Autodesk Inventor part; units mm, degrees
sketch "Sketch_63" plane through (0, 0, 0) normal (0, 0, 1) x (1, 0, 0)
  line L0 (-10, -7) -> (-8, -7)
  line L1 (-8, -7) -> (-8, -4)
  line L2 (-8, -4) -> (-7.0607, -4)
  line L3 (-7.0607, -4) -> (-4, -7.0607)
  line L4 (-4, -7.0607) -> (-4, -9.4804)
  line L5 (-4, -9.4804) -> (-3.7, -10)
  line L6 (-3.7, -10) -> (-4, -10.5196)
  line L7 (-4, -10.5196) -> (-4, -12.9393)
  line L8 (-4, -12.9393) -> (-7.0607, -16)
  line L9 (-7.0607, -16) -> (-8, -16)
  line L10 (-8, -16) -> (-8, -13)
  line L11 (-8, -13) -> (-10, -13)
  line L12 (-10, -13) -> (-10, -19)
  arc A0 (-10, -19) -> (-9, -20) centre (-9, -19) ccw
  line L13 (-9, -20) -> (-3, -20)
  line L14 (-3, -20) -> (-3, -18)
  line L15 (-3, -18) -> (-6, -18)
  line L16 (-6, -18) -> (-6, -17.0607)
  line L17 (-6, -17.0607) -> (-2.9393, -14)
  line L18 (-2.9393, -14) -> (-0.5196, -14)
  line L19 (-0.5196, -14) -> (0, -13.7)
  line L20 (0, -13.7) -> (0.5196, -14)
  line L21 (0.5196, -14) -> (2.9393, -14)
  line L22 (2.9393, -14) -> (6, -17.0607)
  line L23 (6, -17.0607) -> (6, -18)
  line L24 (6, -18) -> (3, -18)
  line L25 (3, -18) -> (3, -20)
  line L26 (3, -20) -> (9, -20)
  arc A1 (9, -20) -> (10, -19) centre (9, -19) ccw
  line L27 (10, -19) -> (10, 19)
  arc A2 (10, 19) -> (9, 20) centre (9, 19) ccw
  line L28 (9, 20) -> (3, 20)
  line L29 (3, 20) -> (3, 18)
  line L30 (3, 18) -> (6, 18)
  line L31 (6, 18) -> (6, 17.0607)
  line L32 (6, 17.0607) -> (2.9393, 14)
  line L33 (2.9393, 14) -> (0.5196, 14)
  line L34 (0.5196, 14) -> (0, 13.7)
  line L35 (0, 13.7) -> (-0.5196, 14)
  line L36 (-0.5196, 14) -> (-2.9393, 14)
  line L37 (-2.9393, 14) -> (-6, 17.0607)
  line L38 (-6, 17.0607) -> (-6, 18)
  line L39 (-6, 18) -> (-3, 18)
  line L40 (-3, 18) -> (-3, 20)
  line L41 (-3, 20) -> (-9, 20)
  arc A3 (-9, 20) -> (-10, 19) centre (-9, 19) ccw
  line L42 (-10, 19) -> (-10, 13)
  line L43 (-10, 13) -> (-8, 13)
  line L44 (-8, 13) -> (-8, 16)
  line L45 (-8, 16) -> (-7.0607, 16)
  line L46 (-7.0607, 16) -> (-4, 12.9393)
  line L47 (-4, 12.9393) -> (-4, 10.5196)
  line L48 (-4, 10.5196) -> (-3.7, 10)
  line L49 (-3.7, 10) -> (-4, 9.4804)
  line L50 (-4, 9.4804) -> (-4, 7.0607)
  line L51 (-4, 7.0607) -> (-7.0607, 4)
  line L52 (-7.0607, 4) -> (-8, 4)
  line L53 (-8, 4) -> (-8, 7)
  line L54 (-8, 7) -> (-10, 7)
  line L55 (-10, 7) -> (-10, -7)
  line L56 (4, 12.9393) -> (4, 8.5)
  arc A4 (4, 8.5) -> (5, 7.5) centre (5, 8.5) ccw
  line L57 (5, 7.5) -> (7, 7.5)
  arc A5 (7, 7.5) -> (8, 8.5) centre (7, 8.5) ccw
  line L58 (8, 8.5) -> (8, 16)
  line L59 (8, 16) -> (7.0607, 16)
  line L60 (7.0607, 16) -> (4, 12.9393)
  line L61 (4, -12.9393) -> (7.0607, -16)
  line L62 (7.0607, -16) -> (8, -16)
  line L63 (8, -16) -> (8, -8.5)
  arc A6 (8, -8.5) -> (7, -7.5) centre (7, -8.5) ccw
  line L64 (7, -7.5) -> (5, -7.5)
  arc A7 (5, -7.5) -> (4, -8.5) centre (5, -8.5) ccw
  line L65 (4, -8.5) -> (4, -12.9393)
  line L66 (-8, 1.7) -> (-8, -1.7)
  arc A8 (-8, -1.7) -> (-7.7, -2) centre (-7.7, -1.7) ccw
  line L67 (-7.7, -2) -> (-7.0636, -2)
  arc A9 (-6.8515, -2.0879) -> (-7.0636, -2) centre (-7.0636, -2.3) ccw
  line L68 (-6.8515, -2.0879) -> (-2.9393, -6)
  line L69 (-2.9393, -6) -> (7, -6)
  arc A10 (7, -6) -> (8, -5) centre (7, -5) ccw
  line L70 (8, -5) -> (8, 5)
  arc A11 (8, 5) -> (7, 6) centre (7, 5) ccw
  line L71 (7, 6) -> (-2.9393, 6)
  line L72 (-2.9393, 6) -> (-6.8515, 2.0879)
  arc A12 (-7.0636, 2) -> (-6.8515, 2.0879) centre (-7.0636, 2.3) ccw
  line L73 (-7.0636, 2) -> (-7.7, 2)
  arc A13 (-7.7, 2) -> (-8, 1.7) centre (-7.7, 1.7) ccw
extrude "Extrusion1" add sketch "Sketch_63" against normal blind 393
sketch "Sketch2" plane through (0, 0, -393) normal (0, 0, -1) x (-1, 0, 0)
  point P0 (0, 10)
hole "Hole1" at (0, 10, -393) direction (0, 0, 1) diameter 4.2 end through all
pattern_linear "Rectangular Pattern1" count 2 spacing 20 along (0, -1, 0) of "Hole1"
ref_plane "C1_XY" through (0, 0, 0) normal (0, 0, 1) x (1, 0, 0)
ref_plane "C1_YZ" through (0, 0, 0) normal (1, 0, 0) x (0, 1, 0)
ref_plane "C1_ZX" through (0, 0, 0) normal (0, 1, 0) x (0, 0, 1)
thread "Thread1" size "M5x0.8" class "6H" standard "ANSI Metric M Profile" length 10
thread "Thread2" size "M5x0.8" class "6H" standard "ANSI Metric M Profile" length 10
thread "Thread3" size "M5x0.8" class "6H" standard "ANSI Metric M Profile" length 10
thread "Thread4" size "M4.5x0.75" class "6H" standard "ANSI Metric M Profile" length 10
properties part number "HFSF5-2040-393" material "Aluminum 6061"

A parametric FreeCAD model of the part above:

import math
import FreeCAD as App
import Part
import Sketcher

V = App.Vector
Q = App.Units.Quantity

doc = App.newDocument("Part")
params = doc.addObject("Spreadsheet::Sheet", "Params")
for row, (alias, value) in enumerate([
    ("sketch1_radius", "1 mm"),
    ("sketch1_radius2", "0.3 mm"),
    ("sketch1_width", "2 mm"),
    ("sketch1_width2", "6 mm"),
    ("sketch1_width3", "3 mm"),
    ("pad1_length", "393 mm"),
    ("sketch2_diameter", "4.2 mm"),
    ("hole_diameter", "4.2 mm"),
    ("linearpattern_pitch", "20 mm"),
], start=1):
    params.set(f"A{row}", alias)
    params.set(f"B{row}", "=" + value)
    params.setAlias(f"B{row}", alias)

body = doc.addObject("PartDesign::Body", "Body")

# Sketch on XY plane
sketch1 = body.newObject("Sketcher::SketchObject", "Sketch")
sketch1.AttachmentSupport = (doc.getObject("XY_Plane"), [""])
sketch1.MapMode = "FlatFace"
sketch1.addGeometry([
    Part.LineSegment(V(-10, 7, 0), V(-10, -7, 0)),  # 0
    Part.LineSegment(V(-10, -7, 0), V(-8, -7, 0)),  # 1
    Part.LineSegment(V(-8, -7, 0), V(-8, -4, 0)),  # 2
    Part.LineSegment(V(-8, -4, 0), V(-7.0607, -4, 0)),  # 3
    Part.LineSegment(V(-7.0607, -4, 0), V(-4, -7.0607, 0)),  # 4
    Part.LineSegment(V(-4, -7.0607, 0), V(-4, -9.4804, 0)),  # 5
    Part.LineSegment(V(-4, -9.4804, 0), V(-3.7, -10, 0)),  # 6
    Part.LineSegment(V(-3.7, -10, 0), V(-4, -10.5196, 0)),  # 7
    Part.LineSegment(V(-4, -10.5196, 0), V(-4, -12.9393, 0)),  # 8
    Part.LineSegment(V(-4, -12.9393, 0), V(-7.0607, -16, 0)),  # 9
    Part.LineSegment(V(-7.0607, -16, 0), V(-8, -16, 0)),  # 10
    Part.LineSegment(V(-8, -16, 0), V(-8, -13, 0)),  # 11
    Part.LineSegment(V(-8, -13, 0), V(-10, -13, 0)),  # 12
    Part.LineSegment(V(-10, -13, 0), V(-10, -19, 0)),  # 13
    Part.ArcOfCircle(Part.Circle(V(-9, -19, 0), V(0, 0, 1), 1), math.radians(180), math.radians(270)),  # 14
    Part.LineSegment(V(-9, -20, 0), V(-3, -20, 0)),  # 15
    Part.LineSegment(V(-3, -20, 0), V(-3, -18, 0)),  # 16
    Part.LineSegment(V(-3, -18, 0), V(-6, -18, 0)),  # 17
    Part.LineSegment(V(-6, -18, 0), V(-6, -17.0607, 0)),  # 18
    Part.LineSegment(V(-6, -17.0607, 0), V(-2.9393, -14, 0)),  # 19
    Part.LineSegment(V(-2.9393, -14, 0), V(-0.5196, -14, 0)),  # 20
    Part.LineSegment(V(-0.5196, -14, 0), V(0, -13.7, 0)),  # 21
    Part.LineSegment(V(0, -13.7, 0), V(0.5196, -14, 0)),  # 22
    Part.LineSegment(V(0.5196, -14, 0), V(2.9393, -14, 0)),  # 23
    Part.LineSegment(V(2.9393, -14, 0), V(6, -17.0607, 0)),  # 24
    Part.LineSegment(V(6, -17.0607, 0), V(6, -18, 0)),  # 25
    Part.LineSegment(V(6, -18, 0), V(3, -18, 0)),  # 26
    Part.LineSegment(V(3, -18, 0), V(3, -20, 0)),  # 27
    Part.LineSegment(V(3, -20, 0), V(9, -20, 0)),  # 28
    Part.ArcOfCircle(Part.Circle(V(9, -19, 0), V(0, 0, 1), 1), math.radians(-90), math.radians(0)),  # 29
    Part.LineSegment(V(10, -19, 0), V(10, 19, 0)),  # 30
    Part.ArcOfCircle(Part.Circle(V(9, 19, 0), V(0, 0, 1), 1), math.radians(0), math.radians(90)),  # 31
    Part.LineSegment(V(9, 20, 0), V(3, 20, 0)),  # 32
    Part.LineSegment(V(3, 20, 0), V(3, 18, 0)),  # 33
    Part.LineSegment(V(3, 18, 0), V(6, 18, 0)),  # 34
    Part.LineSegment(V(6, 18, 0), V(6, 17.0607, 0)),  # 35
    Part.LineSegment(V(6, 17.0607, 0), V(2.9393, 14, 0)),  # 36
    Part.LineSegment(V(2.9393, 14, 0), V(0.5196, 14, 0)),  # 37
    Part.LineSegment(V(0.5196, 14, 0), V(0, 13.7, 0)),  # 38
    Part.LineSegment(V(0, 13.7, 0), V(-0.5196, 14, 0)),  # 39
    Part.LineSegment(V(-0.5196, 14, 0), V(-2.9393, 14, 0)),  # 40
    Part.LineSegment(V(-2.9393, 14, 0), V(-6, 17.0607, 0)),  # 41
    Part.LineSegment(V(-6, 17.0607, 0), V(-6, 18, 0)),  # 42
    Part.LineSegment(V(-6, 18, 0), V(-3, 18, 0)),  # 43
    Part.LineSegment(V(-3, 18, 0), V(-3, 20, 0)),  # 44
    Part.LineSegment(V(-3, 20, 0), V(-9, 20, 0)),  # 45
    Part.ArcOfCircle(Part.Circle(V(-9, 19, 0), V(0, 0, 1), 1), math.radians(90), math.radians(180)),  # 46
    Part.LineSegment(V(-10, 19, 0), V(-10, 13, 0)),  # 47
    Part.LineSegment(V(-10, 13, 0), V(-8, 13, 0)),  # 48
    Part.LineSegment(V(-8, 13, 0), V(-8, 16, 0)),  # 49
    Part.LineSegment(V(-8, 16, 0), V(-7.0607, 16, 0)),  # 50
    Part.LineSegment(V(-7.0607, 16, 0), V(-4, 12.9393, 0)),  # 51
    Part.LineSegment(V(-4, 12.9393, 0), V(-4, 10.5196, 0)),  # 52
    Part.LineSegment(V(-4, 10.5196, 0), V(-3.7, 10, 0)),  # 53
    Part.LineSegment(V(-3.7, 10, 0), V(-4, 9.4804, 0)),  # 54
    Part.LineSegment(V(-4, 9.4804, 0), V(-4, 7.0607, 0)),  # 55
    Part.LineSegment(V(-4, 7.0607, 0), V(-7.0607, 4, 0)),  # 56
    Part.LineSegment(V(-7.0607, 4, 0), V(-8, 4, 0)),  # 57
    Part.LineSegment(V(-8, 4, 0), V(-8, 7, 0)),  # 58
    Part.LineSegment(V(-8, 7, 0), V(-10, 7, 0)),  # 59
    Part.LineSegment(V(7.0607, -16, 0), V(4, -12.9393, 0)),  # 60
    Part.LineSegment(V(4, -12.9393, 0), V(4, -8.5, 0)),  # 61
    Part.ArcOfCircle(Part.Circle(V(5, -8.5, 0), V(0, 0, 1), 1), math.radians(90), math.radians(180)),  # 62
    Part.LineSegment(V(5, -7.5, 0), V(7, -7.5, 0)),  # 63
    Part.ArcOfCircle(Part.Circle(V(7, -8.5, 0), V(0, 0, 1), 1), math.radians(0), math.radians(90)),  # 64
    Part.LineSegment(V(8, -8.5, 0), V(8, -16, 0)),  # 65
    Part.LineSegment(V(8, -16, 0), V(7.0607, -16, 0)),  # 66
    Part.LineSegment(V(-8, -1.7, 0), V(-8, 1.7, 0)),  # 67
    Part.ArcOfCircle(Part.Circle(V(-7.7, 1.7, 0), V(0, 0, 1), 0.3), math.radians(90), math.radians(180)),  # 68
    Part.LineSegment(V(-7.7, 2, 0), V(-7.0636, 2, 0)),  # 69
    Part.ArcOfCircle(Part.Circle(V(-7.0636, 2.3, 0), V(0, 0, 1), 0.3), math.radians(-90), math.radians(-45)),  # 70
    Part.LineSegment(V(-6.8515, 2.0879, 0), V(-2.9393, 6, 0)),  # 71
    Part.LineSegment(V(-2.9393, 6, 0), V(7, 6, 0)),  # 72
    Part.ArcOfCircle(Part.Circle(V(7, 5, 0), V(0, 0, 1), 1), math.radians(0), math.radians(90)),  # 73
    Part.LineSegment(V(8, 5, 0), V(8, -5, 0)),  # 74
    Part.ArcOfCircle(Part.Circle(V(7, -5, 0), V(0, 0, 1), 1), math.radians(-90), math.radians(0)),  # 75
    Part.LineSegment(V(7, -6, 0), V(-2.9393, -6, 0)),  # 76
    Part.LineSegment(V(-2.9393, -6, 0), V(-6.8515, -2.0879, 0)),  # 77
    Part.ArcOfCircle(Part.Circle(V(-7.0636, -2.3, 0), V(0, 0, 1), 0.299955), math.radians(45), math.radians(90)),  # 78
    Part.LineSegment(V(-7.0636, -2, 0), V(-7.7, -2, 0)),  # 79
    Part.ArcOfCircle(Part.Circle(V(-7.7, -1.7, 0), V(0, 0, 1), 0.3), math.radians(180), math.radians(270)),  # 80
    Part.LineSegment(V(4, 8.5, 0), V(4, 12.9393, 0)),  # 81
    Part.LineSegment(V(4, 12.9393, 0), V(7.0607, 16, 0)),  # 82
    Part.LineSegment(V(7.0607, 16, 0), V(8, 16, 0)),  # 83
    Part.LineSegment(V(8, 16, 0), V(8, 8.5, 0)),  # 84
    Part.ArcOfCircle(Part.Circle(V(7, 8.5, 0), V(0, 0, 1), 1), math.radians(-90), math.radians(0)),  # 85
    Part.LineSegment(V(7, 7.5, 0), V(5, 7.5, 0)),  # 86
    Part.ArcOfCircle(Part.Circle(V(5, 8.5, 0), V(0, 0, 1), 1), math.radians(180), math.radians(270)),  # 87
], False)
sketch1.addConstraint([
    Sketcher.Constraint("Coincident", 0, 2, 1, 1),
    Sketcher.Constraint("Coincident", 1, 2, 2, 1),
    Sketcher.Constraint("Coincident", 2, 2, 3, 1),
    Sketcher.Constraint("Coincident", 3, 2, 4, 1),
    Sketcher.Constraint("Coincident", 4, 2, 5, 1),
    Sketcher.Constraint("Coincident", 5, 2, 6, 1),
    Sketcher.Constraint("Coincident", 6, 2, 7, 1),
    Sketcher.Constraint("Coincident", 7, 2, 8, 1),
    Sketcher.Constraint("Coincident", 8, 2, 9, 1),
    Sketcher.Constraint("Coincident", 9, 2, 10, 1),
    Sketcher.Constraint("Coincident", 10, 2, 11, 1),
    Sketcher.Constraint("Coincident", 11, 2, 12, 1),
    Sketcher.Constraint("Coincident", 12, 2, 13, 1),
    Sketcher.Constraint("Tangent", 13, 2, 14, 1),
    Sketcher.Constraint("Tangent", 14, 2, 15, 1),
    Sketcher.Constraint("Coincident", 15, 2, 16, 1),
    Sketcher.Constraint("Coincident", 16, 2, 17, 1),
    Sketcher.Constraint("Coincident", 17, 2, 18, 1),
    Sketcher.Constraint("Coincident", 18, 2, 19, 1),
    Sketcher.Constraint("Coincident", 19, 2, 20, 1),
    Sketcher.Constraint("Coincident", 20, 2, 21, 1),
    Sketcher.Constraint("Coincident", 21, 2, 22, 1),
    Sketcher.Constraint("Coincident", 22, 2, 23, 1),
    Sketcher.Constraint("Coincident", 23, 2, 24, 1),
    Sketcher.Constraint("Coincident", 24, 2, 25, 1),
    Sketcher.Constraint("Coincident", 25, 2, 26, 1),
    Sketcher.Constraint("Coincident", 26, 2, 27, 1),
    Sketcher.Constraint("Coincident", 27, 2, 28, 1),
    Sketcher.Constraint("Tangent", 28, 2, 29, 1),
    Sketcher.Constraint("Tangent", 29, 2, 30, 1),
    Sketcher.Constraint("Tangent", 30, 2, 31, 1),
    Sketcher.Constraint("Tangent", 31, 2, 32, 1),
    Sketcher.Constraint("Coincident", 32, 2, 33, 1),
    Sketcher.Constraint("Coincident", 33, 2, 34, 1),
    Sketcher.Constraint("Coincident", 34, 2, 35, 1),
    Sketcher.Constraint("Coincident", 35, 2, 36, 1),
    Sketcher.Constraint("Coincident", 36, 2, 37, 1),
    Sketcher.Constraint("Coincident", 37, 2, 38, 1),
    Sketcher.Constraint("Coincident", 38, 2, 39, 1),
    Sketcher.Constraint("Coincident", 39, 2, 40, 1),
    Sketcher.Constraint("Coincident", 40, 2, 41, 1),
    Sketcher.Constraint("Coincident", 41, 2, 42, 1),
    Sketcher.Constraint("Coincident", 42, 2, 43, 1),
    Sketcher.Constraint("Coincident", 43, 2, 44, 1),
    Sketcher.Constraint("Coincident", 44, 2, 45, 1),
    Sketcher.Constraint("Tangent", 45, 2, 46, 1),
    Sketcher.Constraint("Tangent", 46, 2, 47, 1),
    Sketcher.Constraint("Coincident", 47, 2, 48, 1),
    Sketcher.Constraint("Coincident", 48, 2, 49, 1),
    Sketcher.Constraint("Coincident", 49, 2, 50, 1),
    Sketcher.Constraint("Coincident", 50, 2, 51, 1),
    Sketcher.Constraint("Coincident", 51, 2, 52, 1),
    Sketcher.Constraint("Coincident", 52, 2, 53, 1),
    Sketcher.Constraint("Coincident", 53, 2, 54, 1),
    Sketcher.Constraint("Coincident", 54, 2, 55, 1),
    Sketcher.Constraint("Coincident", 55, 2, 56, 1),
    Sketcher.Constraint("Coincident", 56, 2, 57, 1),
    Sketcher.Constraint("Coincident", 57, 2, 58, 1),
    Sketcher.Constraint("Coincident", 58, 2, 59, 1),
    Sketcher.Constraint("Coincident", 59, 2, 0, 1),
    Sketcher.Constraint("Coincident", 60, 2, 61, 1),
    Sketcher.Constraint("Tangent", 61, 2, 62, 2),
    Sketcher.Constraint("Tangent", 62, 1, 63, 1),
    Sketcher.Constraint("Tangent", 63, 2, 64, 2),
    Sketcher.Constraint("Tangent", 64, 1, 65, 1),
    Sketcher.Constraint("Coincident", 65, 2, 66, 1),
    Sketcher.Constraint("Coincident", 66, 2, 60, 1),
    Sketcher.Constraint("Tangent", 67, 2, 68, 2),
    Sketcher.Constraint("Tangent", 68, 1, 69, 1),
    Sketcher.Constraint("Tangent", 69, 2, 70, 1),
    Sketcher.Constraint("Tangent", 70, 2, 71, 1),
    Sketcher.Constraint("Coincident", 71, 2, 72, 1),
    Sketcher.Constraint("Tangent", 72, 2, 73, 2),
    Sketcher.Constraint("Tangent", 73, 1, 74, 1),
    Sketcher.Constraint("Tangent", 74, 2, 75, 2),
    Sketcher.Constraint("Tangent", 75, 1, 76, 1),
    Sketcher.Constraint("Coincident", 76, 2, 77, 1),
    Sketcher.Constraint("Tangent", 77, 2, 78, 1),
    Sketcher.Constraint("Tangent", 78, 2, 79, 1),
    Sketcher.Constraint("Tangent", 79, 2, 80, 2),
    Sketcher.Constraint("Tangent", 80, 1, 67, 1),
    Sketcher.Constraint("Coincident", 81, 2, 82, 1),
    Sketcher.Constraint("Coincident", 82, 2, 83, 1),
    Sketcher.Constraint("Coincident", 83, 2, 84, 1),
    Sketcher.Constraint("Tangent", 84, 2, 85, 2),
    Sketcher.Constraint("Tangent", 85, 1, 86, 1),
    Sketcher.Constraint("Tangent", 86, 2, 87, 2),
    Sketcher.Constraint("Tangent", 87, 1, 81, 1),
    Sketcher.Constraint("Vertical", 0),
    Sketcher.Constraint("Horizontal", 1),
    Sketcher.Constraint("Vertical", 2),
    Sketcher.Constraint("Horizontal", 3),
    Sketcher.Constraint("Vertical", 5),
    Sketcher.Constraint("Vertical", 8),
    Sketcher.Constraint("Horizontal", 10),
    Sketcher.Constraint("Vertical", 11),
    Sketcher.Constraint("Horizontal", 12),
    Sketcher.Constraint("Vertical", 13),
    Sketcher.Constraint("Horizontal", 15),
    Sketcher.Constraint("Vertical", 16),
    Sketcher.Constraint("Horizontal", 17),
    Sketcher.Constraint("Vertical", 18),
    Sketcher.Constraint("Horizontal", 20),
    Sketcher.Constraint("Horizontal", 23),
    Sketcher.Constraint("Vertical", 25),
    Sketcher.Constraint("Horizontal", 26),
    Sketcher.Constraint("Vertical", 27),
    Sketcher.Constraint("Horizontal", 28),
    Sketcher.Constraint("Vertical", 30),
    Sketcher.Constraint("Horizontal", 32),
    Sketcher.Constraint("Vertical", 33),
    Sketcher.Constraint("Horizontal", 34),
    Sketcher.Constraint("Vertical", 35),
    Sketcher.Constraint("Horizontal", 37),
    Sketcher.Constraint("Horizontal", 40),
    Sketcher.Constraint("Vertical", 42),
    Sketcher.Constraint("Horizontal", 43),
    Sketcher.Constraint("Vertical", 44),
    Sketcher.Constraint("Horizontal", 45),
    Sketcher.Constraint("Vertical", 47),
    Sketcher.Constraint("Horizontal", 48),
    Sketcher.Constraint("Vertical", 49),
    Sketcher.Constraint("Horizontal", 50),
    Sketcher.Constraint("Vertical", 52),
    Sketcher.Constraint("Vertical", 55),
    Sketcher.Constraint("Horizontal", 57),
    Sketcher.Constraint("Vertical", 58),
    Sketcher.Constraint("Horizontal", 59),
    Sketcher.Constraint("Vertical", 61),
    Sketcher.Constraint("Horizontal", 63),
    Sketcher.Constraint("Vertical", 65),
    Sketcher.Constraint("Horizontal", 66),
    Sketcher.Constraint("Vertical", 67),
    Sketcher.Constraint("Horizontal", 69),
    Sketcher.Constraint("Horizontal", 72),
    Sketcher.Constraint("Vertical", 74),
    Sketcher.Constraint("Horizontal", 76),
    Sketcher.Constraint("Horizontal", 79),
    Sketcher.Constraint("Vertical", 81),
    Sketcher.Constraint("Horizontal", 83),
    Sketcher.Constraint("Vertical", 84),
    Sketcher.Constraint("Horizontal", 86),
    Sketcher.Constraint("Equal", 14, 29),
    Sketcher.Constraint("Equal", 29, 31),
    Sketcher.Constraint("Equal", 31, 46),
    Sketcher.Constraint("Equal", 46, 62),
    Sketcher.Constraint("Equal", 62, 64),
    Sketcher.Constraint("Equal", 68, 70),
    Sketcher.Constraint("Equal", 64, 73),
    Sketcher.Constraint("Equal", 73, 75),
    Sketcher.Constraint("Equal", 70, 78),
    Sketcher.Constraint("Equal", 78, 80),
    Sketcher.Constraint("Equal", 75, 85),
    Sketcher.Constraint("Equal", 85, 87),
    Sketcher.Constraint("Symmetric", 14, 3, 31, 3, -1, 1),
    Sketcher.Constraint("Symmetric", 29, 3, 46, 3, -1, 1),
    Sketcher.Constraint("Symmetric", 16, 2, 33, 2, -1, 1),
    Sketcher.Constraint("Symmetric", 18, 2, 35, 2, -1, 1),
    Sketcher.Constraint("Symmetric", 19, 2, 36, 2, -1, 1),
    Sketcher.Constraint("Symmetric", 21, 2, 38, 2, -1, 1),
    Sketcher.Constraint("Symmetric", 22, 2, 39, 2, -1, 1),
    Sketcher.Constraint("Symmetric", 24, 2, 41, 2, -1, 1),
    Sketcher.Constraint("Symmetric", 26, 2, 43, 2, -1, 1),
    Sketcher.Constraint("Symmetric", 51, 2, 60, 2, -1, 1),
    Sketcher.Constraint("Symmetric", 49, 2, 65, 2, -1, 1),
    Sketcher.Constraint("Symmetric", 8, 2, 81, 2, -1, 1),
    Sketcher.Constraint("Symmetric", 9, 2, 82, 2, -1, 1),
    Sketcher.Constraint("Symmetric", 20, 2, 22, 2, -2),
    Sketcher.Constraint("Symmetric", 18, 2, 24, 2, -2),
    Sketcher.Constraint("Symmetric", 16, 2, 26, 2, -2),
    Sketcher.Constraint("Symmetric", 8, 2, 60, 2, -2),
    Sketcher.Constraint("Symmetric", 10, 2, 65, 2, -2),
    Sketcher.Constraint("Symmetric", 70, 3, 78, 3, -1),
    Sketcher.Constraint("Symmetric", 64, 3, 85, 3, -1),
    Sketcher.Constraint("Symmetric", 6, 2, 53, 2, -1),
    Sketcher.Constraint("Symmetric", 5, 2, 54, 2, -1),
    Sketcher.Constraint("Symmetric", 3, 2, 56, 2, -1),
    Sketcher.Constraint("Symmetric", 1, 2, 58, 2, -1),
    Sketcher.Constraint("Symmetric", 71, 2, 76, 2, -1),
    Sketcher.Constraint("PointOnObject", 21, 2, -2),
    Sketcher.Constraint("Perpendicular", 4, 9),
    Sketcher.Constraint("Parallel", 9, 19),
    Sketcher.Constraint("Perpendicular", 6, 21),
    Sketcher.Constraint("Perpendicular", 7, 22),
    Sketcher.Constraint("Perpendicular", 19, 24),
    Sketcher.Constraint("Parallel", 21, 38),
    Sketcher.Constraint("Perpendicular", 36, 41),
    Sketcher.Constraint("Parallel", 41, 51),
    Sketcher.Constraint("Perpendicular", 38, 53),
    Sketcher.Constraint("Perpendicular", 51, 56),
    Sketcher.Constraint("Perpendicular", 56, 60),
    Sketcher.Constraint("Perpendicular", 60, 71),
    Sketcher.Constraint("Perpendicular", 71, 77),
    Sketcher.Constraint("Horizontal", 14, 3, 29, 3),
    Sketcher.Constraint("Vertical", 64, 3, 73, 3),
    Sketcher.Constraint("Vertical", 5, 2, 7, 2),
    Sketcher.Constraint("Vertical", 3, 2, 9, 2),
    Sketcher.Constraint("Vertical", 2, 2, 10, 2),
    Sketcher.Constraint("Vertical", 0, 2, 12, 2),
    Sketcher.Constraint("Vertical", 58, 2, 67, 2),
    Sketcher.Constraint("Vertical", 40, 2, 71, 2),
    Sketcher.Constraint("Equal", 59, 63),
    Sketcher.Constraint("Equal", 43, 2),
    Sketcher.Constraint("Equal", 40, 5),
    Sketcher.Constraint("Equal", 5, 8),
    Sketcher.Constraint("Equal", 2, 11),
    Sketcher.Constraint("Equal", 45, 13),
    Sketcher.Constraint("Equal", 86, 16),
    Sketcher.Constraint("Equal", 83, 18),
    Sketcher.Constraint("Equal", 13, 47),
    Sketcher.Constraint("Equal", 9, 19),
    Sketcher.Constraint("Equal", 7, 21),
    Sketcher.Constraint("Radius", 14, 1.0),
    Sketcher.Constraint("Radius", 68, 0.3),
    Sketcher.Constraint("DistanceX", 1, 1, 1, 2, 2.0),
    Sketcher.Constraint("DistanceX", 15, 1, 15, 2, 6.0),
    Sketcher.Constraint("DistanceX", 17, 2, 17, 1, 3.0),
    Sketcher.Constraint("DistanceY", 0, 2, 0, 1, 14.0),
    Sketcher.Constraint("DistanceY", 30, 1, 30, 2, 38.0),
    Sketcher.Constraint("DistanceY", 74, 2, 74, 1, 10.0),
    Sketcher.Constraint("Angle", 6, Q("-59.9993 deg")),
    Sketcher.Constraint("DistanceY", 65, 2, 65, 1, 7.5),
    Sketcher.Constraint("DistanceY", 67, 1, 67, 2, 3.4),
    Sketcher.Constraint("Distance", 6, 0.6),
    Sketcher.Constraint("DistanceX", 3, 1, 3, 2, 0.9393),
])
sketch1.setExpression("Constraints[212]", "Params.sketch1_radius")
sketch1.setExpression("Constraints[213]", "Params.sketch1_radius2")
sketch1.setExpression("Constraints[214]", "Params.sketch1_width")
sketch1.setExpression("Constraints[215]", "Params.sketch1_width2")
sketch1.setExpression("Constraints[216]", "Params.sketch1_width3")
pad1 = body.newObject("PartDesign::Pad", "Pad")
pad1.Profile = sketch1
pad1.setExpression("Length", "Params.pad1_length")
pad1.Reversed = True

# Sketch on XY plane
sketch2 = body.newObject("Sketcher::SketchObject", "Sketch001")
sketch2.AttachmentSupport = (doc.getObject("XY_Plane"), [""])
sketch2.MapMode = "FlatFace"
sketch2.AttachmentOffset = App.Placement(V(0, 0, -393), App.Rotation())
sketch2.addGeometry(Part.Circle(V(0, 10, 0), V(0, 0, 1), 2.1), False)
sketch2.addConstraint([
    Sketcher.Constraint("PointOnObject", 0, 3, -2),
    Sketcher.Constraint("Diameter", 0, 4.2),
    Sketcher.Constraint("DistanceY", -1, 1, 0, 3, 10.0),
])
sketch2.setExpression("Constraints[1]", "Params.sketch2_diameter")
doc.recompute()
hole = body.newObject("PartDesign::Hole", "Hole")
hole.Profile = sketch2
hole.ThreadType = "None"
hole.setExpression("Diameter", "Params.hole_diameter")
hole.DepthType = "ThroughAll"
hole.Reversed = True
doc.recompute()

linearpattern = body.newObject("PartDesign::LinearPattern", "LinearPattern")
linearpattern.Originals = [hole]
linearpattern.Direction = (doc.getObject("Y_Axis"), [""])
linearpattern.Mode = "offset"
linearpattern.setExpression("Offset", "Params.linearpattern_pitch")
linearpattern.Occurrences = 2
linearpattern.Reversed = True
body.Tip = linearpattern

doc.recompute()
